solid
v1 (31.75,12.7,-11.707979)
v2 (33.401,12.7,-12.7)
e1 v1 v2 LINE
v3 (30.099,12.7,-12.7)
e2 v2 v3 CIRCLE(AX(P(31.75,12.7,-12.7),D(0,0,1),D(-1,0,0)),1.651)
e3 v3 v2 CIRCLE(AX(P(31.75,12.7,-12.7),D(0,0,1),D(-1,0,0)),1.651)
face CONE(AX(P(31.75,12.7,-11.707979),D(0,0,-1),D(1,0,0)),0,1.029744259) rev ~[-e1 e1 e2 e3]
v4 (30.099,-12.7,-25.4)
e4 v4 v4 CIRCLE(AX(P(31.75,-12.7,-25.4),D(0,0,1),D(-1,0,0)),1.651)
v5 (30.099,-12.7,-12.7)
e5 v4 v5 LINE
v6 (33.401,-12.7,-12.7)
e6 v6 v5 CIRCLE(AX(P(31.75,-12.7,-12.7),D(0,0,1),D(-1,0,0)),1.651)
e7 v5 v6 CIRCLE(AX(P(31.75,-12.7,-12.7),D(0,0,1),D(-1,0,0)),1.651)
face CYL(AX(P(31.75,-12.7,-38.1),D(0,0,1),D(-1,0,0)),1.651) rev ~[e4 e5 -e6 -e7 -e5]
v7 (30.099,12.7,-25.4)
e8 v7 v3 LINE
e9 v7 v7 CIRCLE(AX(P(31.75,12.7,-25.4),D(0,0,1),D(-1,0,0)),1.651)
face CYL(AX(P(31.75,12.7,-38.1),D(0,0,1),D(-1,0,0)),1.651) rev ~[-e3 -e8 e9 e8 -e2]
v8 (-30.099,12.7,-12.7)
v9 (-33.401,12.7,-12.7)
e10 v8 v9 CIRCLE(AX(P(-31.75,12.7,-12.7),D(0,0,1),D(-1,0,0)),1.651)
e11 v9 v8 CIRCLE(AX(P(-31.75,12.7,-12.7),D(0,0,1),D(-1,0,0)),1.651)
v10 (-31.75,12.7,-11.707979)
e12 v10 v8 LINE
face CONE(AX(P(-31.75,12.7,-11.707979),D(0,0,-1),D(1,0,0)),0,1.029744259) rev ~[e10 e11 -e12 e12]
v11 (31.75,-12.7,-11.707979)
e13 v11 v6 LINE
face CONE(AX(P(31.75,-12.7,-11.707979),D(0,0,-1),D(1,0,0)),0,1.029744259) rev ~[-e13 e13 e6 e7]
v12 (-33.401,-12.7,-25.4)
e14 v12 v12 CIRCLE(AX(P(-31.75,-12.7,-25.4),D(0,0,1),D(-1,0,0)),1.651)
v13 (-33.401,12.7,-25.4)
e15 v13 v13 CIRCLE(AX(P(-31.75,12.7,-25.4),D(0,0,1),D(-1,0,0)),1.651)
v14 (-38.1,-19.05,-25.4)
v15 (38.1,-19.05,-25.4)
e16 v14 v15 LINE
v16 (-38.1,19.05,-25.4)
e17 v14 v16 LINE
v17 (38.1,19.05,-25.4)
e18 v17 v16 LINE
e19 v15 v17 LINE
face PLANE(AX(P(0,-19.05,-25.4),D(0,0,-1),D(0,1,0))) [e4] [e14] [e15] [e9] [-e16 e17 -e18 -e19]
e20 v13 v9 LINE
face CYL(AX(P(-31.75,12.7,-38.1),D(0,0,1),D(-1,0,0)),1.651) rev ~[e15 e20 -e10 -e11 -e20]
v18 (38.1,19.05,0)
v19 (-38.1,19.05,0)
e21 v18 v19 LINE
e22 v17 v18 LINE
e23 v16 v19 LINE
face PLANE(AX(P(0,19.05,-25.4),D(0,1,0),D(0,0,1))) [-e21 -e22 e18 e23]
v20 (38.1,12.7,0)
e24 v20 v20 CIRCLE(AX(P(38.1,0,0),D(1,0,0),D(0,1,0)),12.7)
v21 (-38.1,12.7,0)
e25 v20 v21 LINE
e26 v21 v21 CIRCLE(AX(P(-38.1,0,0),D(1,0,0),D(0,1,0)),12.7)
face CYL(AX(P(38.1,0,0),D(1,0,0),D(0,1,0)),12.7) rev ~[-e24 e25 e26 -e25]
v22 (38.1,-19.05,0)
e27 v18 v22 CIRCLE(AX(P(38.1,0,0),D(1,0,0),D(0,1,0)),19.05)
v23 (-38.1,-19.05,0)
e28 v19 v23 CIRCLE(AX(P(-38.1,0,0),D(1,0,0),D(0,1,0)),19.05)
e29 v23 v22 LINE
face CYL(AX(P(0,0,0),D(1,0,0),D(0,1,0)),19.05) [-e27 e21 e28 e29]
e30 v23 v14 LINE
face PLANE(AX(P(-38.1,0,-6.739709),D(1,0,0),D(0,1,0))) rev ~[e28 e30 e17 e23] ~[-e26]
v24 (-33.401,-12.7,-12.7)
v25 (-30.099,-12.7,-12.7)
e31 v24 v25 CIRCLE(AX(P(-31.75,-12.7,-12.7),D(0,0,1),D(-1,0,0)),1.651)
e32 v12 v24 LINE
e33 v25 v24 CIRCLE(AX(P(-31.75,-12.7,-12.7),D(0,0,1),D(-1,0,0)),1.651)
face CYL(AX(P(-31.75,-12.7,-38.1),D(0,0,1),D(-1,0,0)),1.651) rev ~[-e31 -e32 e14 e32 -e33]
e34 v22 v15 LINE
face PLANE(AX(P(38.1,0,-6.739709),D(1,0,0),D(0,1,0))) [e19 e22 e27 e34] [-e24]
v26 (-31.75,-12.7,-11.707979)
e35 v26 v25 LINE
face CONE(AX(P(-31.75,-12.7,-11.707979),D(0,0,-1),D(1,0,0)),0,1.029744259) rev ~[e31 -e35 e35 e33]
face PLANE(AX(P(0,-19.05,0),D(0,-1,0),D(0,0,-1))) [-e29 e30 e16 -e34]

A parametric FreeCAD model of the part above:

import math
import FreeCAD as App
import Part
import Sketcher
Q = App.Units.Quantity

doc = App.newDocument("Part")
params = doc.addObject("Spreadsheet::Sheet", "Params")
for row, (alias, value) in enumerate([
    ("sketch1_height", "1 in"),
    ("sketch1_radius", "0.75 in"),
    ("pad1_length", "3 in"),
    ("sketch2_diameter", "1 in"),
    ("sketch3_diameter", "0.13 in"),
    ("hole_diameter", "0.13 in"),
    ("hole_depth", "0.5 in"),
], start=1):
    params.set(f"A{row}", alias)
    params.set(f"B{row}", "=" + value)
    params.setAlias(f"B{row}", alias)

body = doc.addObject("PartDesign::Body", "Body")

sketch1 = body.newObject("Sketcher::SketchObject", "Sketch")
sketch1.AttachmentSupport = (doc.getObject("YZ_Plane"), [""])
sketch1.MapMode = "FlatFace"
sketch1.addGeometry([
    Part.ArcOfCircle(Part.Circle(App.Vector(0, 0, 0), App.Vector(0, 0, 1), 19.05), math.radians(0), math.radians(180)),
    Part.LineSegment(App.Vector(-19.05, 0, 0), App.Vector(-19.05, -25.4, 0)),
    Part.LineSegment(App.Vector(-19.05, -25.4, 0), App.Vector(19.05, -25.4, 0)),
    Part.LineSegment(App.Vector(19.05, -25.4, 0), App.Vector(19.05, 0, 0)),
], False)
sketch1.addConstraint([
    Sketcher.Constraint("Tangent", 0, 2, 1, 1),
    Sketcher.Constraint("Coincident", 1, 2, 2, 1),
    Sketcher.Constraint("Coincident", 2, 2, 3, 1),
    Sketcher.Constraint("Tangent", 3, 2, 0, 1),
    Sketcher.Constraint("Vertical", 1),
    Sketcher.Constraint("Horizontal", 2),
    Sketcher.Constraint("Vertical", 3),
    Sketcher.Constraint("Coincident", 0, 3, -1, 1),
    Sketcher.Constraint("DistanceY", 1, 2, 1, 1, Q("1 in")),
    Sketcher.Constraint("Radius", 0, Q("0.75 in")),
])
sketch1.setExpression("Constraints[8]", "Params.sketch1_height")
sketch1.setExpression("Constraints[9]", "Params.sketch1_radius")
pad1 = body.newObject("PartDesign::Pad", "Pad")
pad1.Profile = sketch1
pad1.setExpression("Length", "Params.pad1_length")
pad1.Midplane = True

sketch2 = body.newObject("Sketcher::SketchObject", "Sketch001")
sketch2.AttachmentSupport = (doc.getObject("YZ_Plane"), [""])
sketch2.MapMode = "FlatFace"
sketch2.AttachmentOffset = App.Placement(App.Vector(0, 0, 1.5 * 25.4), App.Rotation())
sketch2.addGeometry(Part.Circle(App.Vector(0, 0, 0), App.Vector(0, 0, 1), 12.7), False)
sketch2.addConstraint([
    Sketcher.Constraint("Coincident", 0, 3, -1, 1),
    Sketcher.Constraint("Diameter", 0, Q("1 in")),
])
sketch2.setExpression("Constraints[1]", "Params.sketch2_diameter")
pocket1 = body.newObject("PartDesign::Pocket", "Pocket")
pocket1.Profile = sketch2
pocket1.Type = "ThroughAll"

sketch3 = body.newObject("Sketcher::SketchObject", "Sketch002")
sketch3.AttachmentSupport = (doc.getObject("XY_Plane"), [""])
sketch3.MapMode = "FlatFace"
sketch3.AttachmentOffset = App.Placement(App.Vector(0, 0, -1 * 25.4), App.Rotation())
sketch3.addGeometry([
    Part.Circle(App.Vector(-31.75, -12.7, 0), App.Vector(0, 0, 1), 1.651),
    Part.Circle(App.Vector(-31.75, 12.7, 0), App.Vector(0, 0, 1), 1.651),
    Part.Circle(App.Vector(31.75, 12.7, 0), App.Vector(0, 0, 1), 1.651),
    Part.Circle(App.Vector(31.75, -12.7, 0), App.Vector(0, 0, 1), 1.651),
], False)
sketch3.addConstraint([
    Sketcher.Constraint("Equal", 0, 1),
    Sketcher.Constraint("Equal", 1, 2),
    Sketcher.Constraint("Equal", 2, 3),
    Sketcher.Constraint("Symmetric", 0, 3, 2, 3, -1, 1),
    Sketcher.Constraint("Symmetric", 1, 3, 3, 3, -1, 1),
    Sketcher.Constraint("Symmetric", 1, 3, 2, 3, -2),
    Sketcher.Constraint("Diameter", 0, Q("0.13 in")),
    Sketcher.Constraint("DistanceY", 0, 3, 1, 3, Q("1 in")),
    Sketcher.Constraint("DistanceX", 1, 3, 2, 3, Q("2.5 in")),
])
sketch3.setExpression("Constraints[6]", "Params.sketch3_diameter")
doc.recompute()
hole = body.newObject("PartDesign::Hole", "Hole")
hole.Profile = sketch3
hole.ThreadType = "None"
hole.setExpression("Diameter", "Params.hole_diameter")
hole.DepthType = "Dimension"
hole.setExpression("Depth", "Params.hole_depth")
hole.DrillPoint = "Angled"
hole.DrillPointAngle = 118
hole.Reversed = True

doc.recompute()
